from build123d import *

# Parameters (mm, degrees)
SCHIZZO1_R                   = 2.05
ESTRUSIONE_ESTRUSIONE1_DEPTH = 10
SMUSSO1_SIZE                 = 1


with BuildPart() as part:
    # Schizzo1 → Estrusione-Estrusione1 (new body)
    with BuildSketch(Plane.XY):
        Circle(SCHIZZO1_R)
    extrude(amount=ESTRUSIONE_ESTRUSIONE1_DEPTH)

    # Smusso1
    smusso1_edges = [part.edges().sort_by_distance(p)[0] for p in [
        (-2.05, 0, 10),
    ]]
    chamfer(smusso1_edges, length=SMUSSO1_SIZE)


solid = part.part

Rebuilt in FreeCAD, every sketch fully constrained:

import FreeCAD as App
import Part
import Sketcher


def edges_at(feature, points):
    """Names of the edges that pass closest to the given points."""
    edges = feature.Shape.Edges
    near = lambda p: min(range(len(edges)), key=lambda i: edges[i].distToShape(Part.Vertex(*p))[0])
    return sorted({f"Edge{near(p) + 1}" for p in points})

doc = App.newDocument("Part")
body = doc.addObject("PartDesign::Body", "Body")

# Sketch on XY plane
sketch1 = body.newObject("Sketcher::SketchObject", "Sketch")
sketch1.AttachmentSupport = (doc.getObject("XY_Plane"), [""])
sketch1.MapMode = "FlatFace"
sketch1.addGeometry(Part.Circle(App.Vector(0, 0, 0), App.Vector(0, 0, 1), 2), False)
sketch1.addConstraint([
    Sketcher.Constraint("Coincident", 0, 3, -1, 1),
    Sketcher.Constraint("Diameter", 0, 4.1),
])
pad1 = body.newObject("PartDesign::Pad", "Pad")
pad1.Profile = sketch1
pad1.Length = 10
doc.recompute()

chamfer = body.newObject("PartDesign::Chamfer", "Chamfer")
chamfer.Base = (pad1, edges_at(pad1, [(-2.05, 0, 10)]))
chamfer.Size = 1

doc.recompute()
